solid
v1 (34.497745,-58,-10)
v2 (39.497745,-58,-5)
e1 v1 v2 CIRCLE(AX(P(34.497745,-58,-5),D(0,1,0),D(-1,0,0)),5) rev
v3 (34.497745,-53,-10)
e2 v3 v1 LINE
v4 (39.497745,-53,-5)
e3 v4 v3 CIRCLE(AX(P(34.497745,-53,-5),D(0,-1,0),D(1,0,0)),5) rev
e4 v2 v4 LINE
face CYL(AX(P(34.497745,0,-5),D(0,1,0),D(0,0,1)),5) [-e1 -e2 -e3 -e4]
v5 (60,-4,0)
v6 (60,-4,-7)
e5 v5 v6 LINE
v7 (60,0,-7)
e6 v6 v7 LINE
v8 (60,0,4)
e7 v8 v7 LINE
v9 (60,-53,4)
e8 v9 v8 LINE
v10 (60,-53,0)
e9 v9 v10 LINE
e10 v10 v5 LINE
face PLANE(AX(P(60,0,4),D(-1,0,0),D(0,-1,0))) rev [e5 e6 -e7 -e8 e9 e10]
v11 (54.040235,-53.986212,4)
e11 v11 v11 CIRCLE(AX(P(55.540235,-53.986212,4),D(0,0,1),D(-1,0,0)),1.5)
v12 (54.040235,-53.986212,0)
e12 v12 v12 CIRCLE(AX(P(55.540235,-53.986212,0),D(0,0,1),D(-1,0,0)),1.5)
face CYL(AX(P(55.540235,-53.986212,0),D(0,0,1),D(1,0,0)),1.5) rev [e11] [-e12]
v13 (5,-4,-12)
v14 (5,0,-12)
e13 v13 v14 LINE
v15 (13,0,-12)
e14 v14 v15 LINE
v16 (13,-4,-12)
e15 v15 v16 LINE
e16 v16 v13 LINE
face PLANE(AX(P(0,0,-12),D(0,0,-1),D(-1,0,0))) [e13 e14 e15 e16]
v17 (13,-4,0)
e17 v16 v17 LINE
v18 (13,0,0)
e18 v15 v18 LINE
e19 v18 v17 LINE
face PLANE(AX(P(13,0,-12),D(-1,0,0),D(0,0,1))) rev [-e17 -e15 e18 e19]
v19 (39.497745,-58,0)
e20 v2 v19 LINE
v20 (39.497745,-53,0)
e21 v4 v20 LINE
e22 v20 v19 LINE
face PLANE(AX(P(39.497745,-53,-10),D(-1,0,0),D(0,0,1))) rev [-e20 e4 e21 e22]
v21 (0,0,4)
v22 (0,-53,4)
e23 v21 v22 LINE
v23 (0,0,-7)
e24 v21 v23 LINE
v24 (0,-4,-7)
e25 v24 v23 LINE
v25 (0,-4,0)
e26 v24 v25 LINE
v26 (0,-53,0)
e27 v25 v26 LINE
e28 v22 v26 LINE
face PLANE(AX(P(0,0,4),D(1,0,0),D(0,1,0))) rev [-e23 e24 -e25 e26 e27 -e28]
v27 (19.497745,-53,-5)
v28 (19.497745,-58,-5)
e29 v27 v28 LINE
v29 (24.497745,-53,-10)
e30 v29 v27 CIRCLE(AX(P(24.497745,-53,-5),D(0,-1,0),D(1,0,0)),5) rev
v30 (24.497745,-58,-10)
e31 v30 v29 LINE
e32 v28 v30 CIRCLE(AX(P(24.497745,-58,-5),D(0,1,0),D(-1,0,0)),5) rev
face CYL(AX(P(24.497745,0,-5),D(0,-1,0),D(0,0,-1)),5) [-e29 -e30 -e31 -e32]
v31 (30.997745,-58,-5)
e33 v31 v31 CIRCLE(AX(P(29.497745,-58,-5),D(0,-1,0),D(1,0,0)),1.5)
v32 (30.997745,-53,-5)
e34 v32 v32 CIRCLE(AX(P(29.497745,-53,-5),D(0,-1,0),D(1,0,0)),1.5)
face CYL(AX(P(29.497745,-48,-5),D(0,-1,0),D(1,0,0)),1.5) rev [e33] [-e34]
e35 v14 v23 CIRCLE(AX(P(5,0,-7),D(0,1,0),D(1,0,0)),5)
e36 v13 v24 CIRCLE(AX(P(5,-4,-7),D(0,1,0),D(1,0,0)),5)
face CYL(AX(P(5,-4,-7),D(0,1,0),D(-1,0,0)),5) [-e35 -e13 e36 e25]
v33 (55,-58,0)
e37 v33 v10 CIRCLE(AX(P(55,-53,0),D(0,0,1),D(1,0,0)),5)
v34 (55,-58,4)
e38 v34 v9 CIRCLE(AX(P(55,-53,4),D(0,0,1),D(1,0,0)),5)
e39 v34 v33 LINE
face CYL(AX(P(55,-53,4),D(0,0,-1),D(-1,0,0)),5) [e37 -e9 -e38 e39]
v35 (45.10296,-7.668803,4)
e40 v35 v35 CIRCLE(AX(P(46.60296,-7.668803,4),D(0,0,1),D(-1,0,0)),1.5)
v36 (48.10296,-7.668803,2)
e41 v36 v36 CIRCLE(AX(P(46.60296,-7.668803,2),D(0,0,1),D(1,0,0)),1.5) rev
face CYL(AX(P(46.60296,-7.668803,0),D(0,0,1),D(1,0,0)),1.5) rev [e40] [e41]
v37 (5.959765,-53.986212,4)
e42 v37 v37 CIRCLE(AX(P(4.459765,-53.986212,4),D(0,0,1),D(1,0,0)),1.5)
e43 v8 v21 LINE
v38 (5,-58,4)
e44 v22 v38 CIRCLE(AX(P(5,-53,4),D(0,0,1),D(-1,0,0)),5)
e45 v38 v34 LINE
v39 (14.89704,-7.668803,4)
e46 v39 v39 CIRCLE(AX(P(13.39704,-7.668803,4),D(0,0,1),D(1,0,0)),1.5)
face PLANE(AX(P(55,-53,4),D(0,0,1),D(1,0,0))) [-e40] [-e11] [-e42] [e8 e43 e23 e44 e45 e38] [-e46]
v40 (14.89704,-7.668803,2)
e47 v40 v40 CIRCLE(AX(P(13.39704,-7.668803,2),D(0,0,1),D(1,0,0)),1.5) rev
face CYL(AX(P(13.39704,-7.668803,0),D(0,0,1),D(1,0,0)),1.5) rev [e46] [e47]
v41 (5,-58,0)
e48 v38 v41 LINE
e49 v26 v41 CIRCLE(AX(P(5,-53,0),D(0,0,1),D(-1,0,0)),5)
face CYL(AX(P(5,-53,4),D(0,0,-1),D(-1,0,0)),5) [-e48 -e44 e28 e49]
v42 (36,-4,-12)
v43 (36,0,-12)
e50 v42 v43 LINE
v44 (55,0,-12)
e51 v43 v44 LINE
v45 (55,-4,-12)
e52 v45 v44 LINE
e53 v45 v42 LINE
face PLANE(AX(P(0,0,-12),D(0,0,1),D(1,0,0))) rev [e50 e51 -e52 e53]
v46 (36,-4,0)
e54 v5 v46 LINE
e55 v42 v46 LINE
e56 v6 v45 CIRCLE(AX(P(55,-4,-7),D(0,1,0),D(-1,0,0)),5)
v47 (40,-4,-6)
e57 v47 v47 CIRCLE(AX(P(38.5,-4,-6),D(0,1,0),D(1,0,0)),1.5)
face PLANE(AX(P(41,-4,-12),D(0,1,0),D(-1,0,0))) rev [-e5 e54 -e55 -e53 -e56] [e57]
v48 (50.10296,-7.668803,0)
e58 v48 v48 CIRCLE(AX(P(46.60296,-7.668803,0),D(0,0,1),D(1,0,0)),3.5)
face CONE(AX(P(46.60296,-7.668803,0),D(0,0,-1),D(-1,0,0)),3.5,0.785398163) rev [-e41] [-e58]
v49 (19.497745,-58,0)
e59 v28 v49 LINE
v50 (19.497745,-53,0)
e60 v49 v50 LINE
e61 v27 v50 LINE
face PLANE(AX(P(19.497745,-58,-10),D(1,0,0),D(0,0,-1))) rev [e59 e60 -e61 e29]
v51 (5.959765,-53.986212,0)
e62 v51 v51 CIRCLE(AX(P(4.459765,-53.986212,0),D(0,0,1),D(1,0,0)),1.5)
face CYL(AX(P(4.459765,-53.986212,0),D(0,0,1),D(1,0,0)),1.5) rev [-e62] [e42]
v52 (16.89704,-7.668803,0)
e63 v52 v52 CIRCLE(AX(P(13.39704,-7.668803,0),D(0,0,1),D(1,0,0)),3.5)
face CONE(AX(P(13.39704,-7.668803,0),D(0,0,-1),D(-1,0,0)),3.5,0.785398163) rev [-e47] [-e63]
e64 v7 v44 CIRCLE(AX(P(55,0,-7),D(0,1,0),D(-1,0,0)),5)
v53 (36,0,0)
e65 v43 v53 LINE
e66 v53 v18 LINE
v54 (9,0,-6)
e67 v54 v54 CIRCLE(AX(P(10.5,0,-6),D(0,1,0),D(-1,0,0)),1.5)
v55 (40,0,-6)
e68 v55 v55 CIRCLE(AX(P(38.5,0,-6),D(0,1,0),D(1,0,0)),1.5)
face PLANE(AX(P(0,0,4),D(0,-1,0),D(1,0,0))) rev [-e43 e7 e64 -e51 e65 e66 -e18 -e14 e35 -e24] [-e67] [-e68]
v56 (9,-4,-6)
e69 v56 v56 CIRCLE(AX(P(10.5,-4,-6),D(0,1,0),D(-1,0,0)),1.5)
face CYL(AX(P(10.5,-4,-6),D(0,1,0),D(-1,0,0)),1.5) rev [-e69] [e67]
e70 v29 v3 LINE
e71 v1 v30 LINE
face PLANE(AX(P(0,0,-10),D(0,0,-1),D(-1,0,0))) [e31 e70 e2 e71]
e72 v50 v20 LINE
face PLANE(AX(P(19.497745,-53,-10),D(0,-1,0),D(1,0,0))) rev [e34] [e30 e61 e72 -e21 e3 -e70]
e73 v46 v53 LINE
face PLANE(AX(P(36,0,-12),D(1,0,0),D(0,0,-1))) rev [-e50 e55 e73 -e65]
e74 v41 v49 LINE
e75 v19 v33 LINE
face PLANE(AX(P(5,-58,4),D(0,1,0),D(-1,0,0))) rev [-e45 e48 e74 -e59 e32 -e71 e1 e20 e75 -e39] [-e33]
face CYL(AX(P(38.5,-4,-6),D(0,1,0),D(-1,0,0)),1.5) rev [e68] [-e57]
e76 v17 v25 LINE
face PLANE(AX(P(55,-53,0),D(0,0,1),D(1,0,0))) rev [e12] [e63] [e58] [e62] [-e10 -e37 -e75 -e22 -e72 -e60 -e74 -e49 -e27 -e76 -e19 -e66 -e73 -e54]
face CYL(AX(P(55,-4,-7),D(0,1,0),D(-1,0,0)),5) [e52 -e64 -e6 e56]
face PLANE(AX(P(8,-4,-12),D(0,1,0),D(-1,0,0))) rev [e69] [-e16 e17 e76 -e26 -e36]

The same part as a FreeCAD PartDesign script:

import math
import FreeCAD as App
import Part
import Sketcher
from FreeCAD import Vector


def edges_at(feature, points):
    """Names of the edges that pass closest to the given points."""
    edges = feature.Shape.Edges
    near = lambda p: min(range(len(edges)), key=lambda i: edges[i].distToShape(Part.Vertex(*p))[0])
    return sorted({f"Edge{near(p) + 1}" for p in points})


def add_polygon(sketch, points):
    """Adds a closed chain of lines whose ends are joined by coincident constraints."""
    first, n = sketch.GeometryCount, len(points)
    for a, b in zip(points, points[1:] + points[:1]):
        sketch.addGeometry(Part.LineSegment(App.Vector(*a, 0), App.Vector(*b, 0)), False)
    for i in range(n):
        sketch.addConstraint(Sketcher.Constraint("Coincident", first + i, 2, first + (i + 1) % n, 1))

doc = App.newDocument("Part")
body = doc.addObject("PartDesign::Body", "Body")

# Sketch on XY plane
sketch1 = body.newObject("Sketcher::SketchObject", "Sketch")
sketch1.AttachmentSupport = (doc.getObject("XY_Plane"), [""])
sketch1.MapMode = "FlatFace"
sketch1.addGeometry([
    Part.LineSegment(Vector(0, 0, 0), Vector(0, -53, 0)),  # 0
    Part.ArcOfCircle(Part.Circle(Vector(5, -53, 0), Vector(0, 0, 1), 5), math.radians(180), math.radians(270)),  # 1
    Part.LineSegment(Vector(5, -58, 0), Vector(55, -58, 0)),  # 2
    Part.ArcOfCircle(Part.Circle(Vector(55, -53, 0), Vector(0, 0, 1), 5), math.radians(-90), math.radians(0)),  # 3
    Part.LineSegment(Vector(60, -53, 0), Vector(60, 0, 0)),  # 4
    Part.LineSegment(Vector(60, 0, 0), Vector(0, 0, 0)),  # 5
], False)
sketch1.addConstraint([
    Sketcher.Constraint("Tangent", 0, 2, 1, 1),
    Sketcher.Constraint("Tangent", 1, 2, 2, 1),
    Sketcher.Constraint("Tangent", 2, 2, 3, 1),
    Sketcher.Constraint("Tangent", 3, 2, 4, 1),
    Sketcher.Constraint("Coincident", 4, 2, 5, 1),
    Sketcher.Constraint("Coincident", 5, 2, 0, 1),
    Sketcher.Constraint("Vertical", 0),
    Sketcher.Constraint("Horizontal", 2),
    Sketcher.Constraint("Vertical", 4),
    Sketcher.Constraint("Horizontal", 5),
    Sketcher.Constraint("Coincident", 5, 2, -1, 1),
    Sketcher.Constraint("Equal", 1, 3),
    Sketcher.Constraint("Radius", 1, 5.0),
    Sketcher.Constraint("DistanceX", 2, 1, 2, 2, 50.0),
    Sketcher.Constraint("DistanceY", 0, 2, 0, 1, 53.0),
])
pad1 = body.newObject("PartDesign::Pad", "Pad")
pad1.Profile = sketch1
pad1.Length = 4

# Sketch on XY plane
sketch2 = body.newObject("Sketcher::SketchObject", "Sketch001")
sketch2.AttachmentSupport = (doc.getObject("XY_Plane"), [""])
sketch2.MapMode = "FlatFace"
sketch2.AttachmentOffset = App.Placement(Vector(0, 0, 4), App.Rotation())
sketch2.addGeometry([
    Part.Circle(Vector(13.39704, -7.668803, 0), Vector(0, 0, 1), 1.5),
    Part.Circle(Vector(4.459765, -53.986212, 0), Vector(0, 0, 1), 1.5),
    Part.Circle(Vector(55.540235, -53.986212, 0), Vector(0, 0, 1), 1.5),
    Part.Circle(Vector(46.60296, -7.668803, 0), Vector(0, 0, 1), 1.5),
], False)
sketch2.addConstraint([
    Sketcher.Constraint("Equal", 0, 1),
    Sketcher.Constraint("Equal", 1, 2),
    Sketcher.Constraint("Equal", 2, 3),
    Sketcher.Constraint("Horizontal", 1, 3, 2, 3),
    Sketcher.Constraint("Horizontal", 0, 3, 3, 3),
    Sketcher.Constraint("Diameter", 0, 3.0),
    Sketcher.Constraint("DistanceX", -1, 1, 0, 3, 13.39704),
    Sketcher.Constraint("DistanceY", 1, 3, -1, 1, 53.986212),
    Sketcher.Constraint("DistanceX", -1, 1, 3, 3, 46.60296),
    Sketcher.Constraint("DistanceY", 1, 3, 0, 3, 46.317408),
    Sketcher.Constraint("DistanceX", 1, 3, 2, 3, 51.08047),
    Sketcher.Constraint("DistanceX", -1, 1, 1, 3, 4.459765),
])
pocket1 = body.newObject("PartDesign::Pocket", "Pocket")
pocket1.Profile = sketch2
pocket1.Length = 4

# Sketch on XY plane
sketch3 = body.newObject("Sketcher::SketchObject", "Sketch002")
sketch3.AttachmentSupport = (doc.getObject("XY_Plane"), [""])
sketch3.MapMode = "FlatFace"
add_polygon(sketch3, [(41, 0), (41, -4), (36, -4), (36, 0)])  # lines 0-3
add_polygon(sketch3, [(13, 0), (13, -4), (8, -4), (8, 0)])  # lines 4-7
sketch3.addConstraint([
    Sketcher.Constraint("Vertical", 0),
    Sketcher.Constraint("Horizontal", 1),
    Sketcher.Constraint("Vertical", 2),
    Sketcher.Constraint("Horizontal", 3),
    Sketcher.Constraint("Vertical", 4),
    Sketcher.Constraint("Horizontal", 5),
    Sketcher.Constraint("Vertical", 6),
    Sketcher.Constraint("Horizontal", 7),
    Sketcher.Constraint("PointOnObject", 2, 2, -1),
    Sketcher.Constraint("PointOnObject", 6, 2, -1),
    Sketcher.Constraint("Horizontal", 1, 2, 4, 2),
    Sketcher.Constraint("Equal", 3, 5),
    Sketcher.Constraint("DistanceX", 1, 2, 1, 1, 5.0),
    Sketcher.Constraint("DistanceY", 0, 2, 0, 1, 4.0),
    Sketcher.Constraint("DistanceX", -1, 1, 0, 2, 41.0),
    Sketcher.Constraint("DistanceX", -1, 1, 4, 2, 13.0),
])
pad2 = body.newObject("PartDesign::Pad", "Pad001")
pad2.Profile = sketch3
pad2.Length = 12
pad2.Reversed = True

# Sketch on XZ plane
sketch4 = body.newObject("Sketcher::SketchObject", "Sketch003")
sketch4.AttachmentSupport = (doc.getObject("XZ_Plane"), [""])
sketch4.MapMode = "FlatFace"
sketch4.addGeometry([
    Part.LineSegment(Vector(0, 0, 0), Vector(8, 0, 0)),  # 0
    Part.LineSegment(Vector(8, 0, 0), Vector(8, -12, 0)),  # 1
    Part.LineSegment(Vector(8, -12, 0), Vector(5, -12, 0)),  # 2
    Part.ArcOfCircle(Part.Circle(Vector(5, -7, 0), Vector(0, 0, 1), 5), math.radians(180), math.radians(270)),  # 3
    Part.LineSegment(Vector(0, -7, 0), Vector(0, 0, 0)),  # 4
    Part.LineSegment(Vector(41, 0, 0), Vector(60, 0, 0)),  # 5
    Part.LineSegment(Vector(60, 0, 0), Vector(60, -7, 0)),  # 6
    Part.ArcOfCircle(Part.Circle(Vector(55, -7, 0), Vector(0, 0, 1), 5), math.radians(-90), math.radians(0)),  # 7
    Part.LineSegment(Vector(55, -12, 0), Vector(41, -12, 0)),  # 8
    Part.LineSegment(Vector(41, -12, 0), Vector(41, 0, 0)),  # 9
], False)
sketch4.addConstraint([
    Sketcher.Constraint("Coincident", 0, 2, 1, 1),
    Sketcher.Constraint("Coincident", 1, 2, 2, 1),
    Sketcher.Constraint("Tangent", 2, 2, 3, 2),
    Sketcher.Constraint("Tangent", 3, 1, 4, 1),
    Sketcher.Constraint("Coincident", 4, 2, 0, 1),
    Sketcher.Constraint("Coincident", 5, 2, 6, 1),
    Sketcher.Constraint("Tangent", 6, 2, 7, 2),
    Sketcher.Constraint("Tangent", 7, 1, 8, 1),
    Sketcher.Constraint("Coincident", 8, 2, 9, 1),
    Sketcher.Constraint("Coincident", 9, 2, 5, 1),
    Sketcher.Constraint("Horizontal", 0),
    Sketcher.Constraint("Vertical", 1),
    Sketcher.Constraint("Horizontal", 2),
    Sketcher.Constraint("Vertical", 4),
    Sketcher.Constraint("Horizontal", 5),
    Sketcher.Constraint("Vertical", 6),
    Sketcher.Constraint("Horizontal", 8),
    Sketcher.Constraint("Vertical", 9),
    Sketcher.Constraint("Coincident", 4, 2, -1, 1),
    Sketcher.Constraint("Equal", 3, 7),
    Sketcher.Constraint("PointOnObject", 5, 2, -1),
    Sketcher.Constraint("Horizontal", 3, 3, 7, 3),
    Sketcher.Constraint("Radius", 3, 5.0),
    Sketcher.Constraint("DistanceX", 0, 1, 0, 2, 8.0),
    Sketcher.Constraint("DistanceX", 5, 1, 5, 2, 19.0),
    Sketcher.Constraint("DistanceY", 1, 2, 1, 1, 12.0),
    Sketcher.Constraint("DistanceX", -1, 1, 7, 3, 55.0),
])
pad3 = body.newObject("PartDesign::Pad", "Pad002")
pad3.Profile = sketch4
pad3.Length = 4

# Sketch on XZ plane
sketch5 = body.newObject("Sketcher::SketchObject", "Sketch004")
sketch5.AttachmentSupport = (doc.getObject("XZ_Plane"), [""])
sketch5.MapMode = "FlatFace"
sketch5.addGeometry([
    Part.Circle(Vector(10.5, -6, 0), Vector(0, 0, 1), 1.5),
    Part.Circle(Vector(38.5, -6, 0), Vector(0, 0, 1), 1.5),
], False)
sketch5.addConstraint([
    Sketcher.Constraint("Equal", 0, 1),
    Sketcher.Constraint("Horizontal", 0, 3, 1, 3),
    Sketcher.Constraint("Diameter", 0, 3.0),
    Sketcher.Constraint("DistanceY", 0, 3, -1, 1, 6.0),
    Sketcher.Constraint("DistanceX", 0, 3, 1, 3, 28.0),
    Sketcher.Constraint("DistanceX", -1, 1, 0, 3, 10.5),
])
pocket2 = body.newObject("PartDesign::Pocket", "Pocket001")
pocket2.Profile = sketch5
pocket2.Length = 4
pocket2.Reversed = True
doc.recompute()

chamfer = body.newObject("PartDesign::Chamfer", "Chamfer")
chamfer.Base = (pocket2, edges_at(pocket2, [(45.103, -7.669, 0), (11.897, -7.669, 0)]))
chamfer.Size = 2

# Sketch on XY plane
sketch6 = body.newObject("Sketcher::SketchObject", "Sketch005")
sketch6.AttachmentSupport = (doc.getObject("XY_Plane"), [""])
sketch6.MapMode = "FlatFace"
add_polygon(sketch6, [(39.497745, -53), (39.497745, -58), (19.497745, -58), (19.497745, -53)])  # lines 0-3
sketch6.addConstraint([
    Sketcher.Constraint("Vertical", 0),
    Sketcher.Constraint("Horizontal", 1),
    Sketcher.Constraint("Vertical", 2),
    Sketcher.Constraint("Horizontal", 3),
    Sketcher.Constraint("DistanceX", 1, 2, 1, 1, 20.0),
    Sketcher.Constraint("DistanceY", 0, 2, 0, 1, 5.0),
    Sketcher.Constraint("DistanceY", 0, 2, -1, 1, 58.0),
    Sketcher.Constraint("DistanceX", -1, 1, 0, 2, 39.497745),
])
pad4 = body.newObject("PartDesign::Pad", "Pad003")
pad4.Profile = sketch6
pad4.Length = 10
pad4.Reversed = True
doc.recompute()

fillet = body.newObject("PartDesign::Fillet", "Fillet")
fillet.Base = (pad4, edges_at(pad4, [(39.498, -55.5, -10), (19.498, -55.5, -10)]))
fillet.Radius = 5

# Sketch on XZ plane
sketch7 = body.newObject("Sketcher::SketchObject", "Sketch006")
sketch7.AttachmentSupport = (doc.getObject("XZ_Plane"), [""])
sketch7.MapMode = "FlatFace"
sketch7.AttachmentOffset = App.Placement(Vector(0, 0, 58), App.Rotation())
sketch7.addGeometry(Part.Circle(Vector(29.497745, -5, 0), Vector(0, 0, 1), 1.5), False)
sketch7.addConstraint([
    Sketcher.Constraint("Diameter", 0, 3.0),
    Sketcher.Constraint("DistanceY", 0, 3, -1, 1, 5.0),
    Sketcher.Constraint("DistanceX", -1, 1, 0, 3, 29.497745),
])
pocket3 = body.newObject("PartDesign::Pocket", "Pocket002")
pocket3.Profile = sketch7
pocket3.Length = 10

doc.recompute()
